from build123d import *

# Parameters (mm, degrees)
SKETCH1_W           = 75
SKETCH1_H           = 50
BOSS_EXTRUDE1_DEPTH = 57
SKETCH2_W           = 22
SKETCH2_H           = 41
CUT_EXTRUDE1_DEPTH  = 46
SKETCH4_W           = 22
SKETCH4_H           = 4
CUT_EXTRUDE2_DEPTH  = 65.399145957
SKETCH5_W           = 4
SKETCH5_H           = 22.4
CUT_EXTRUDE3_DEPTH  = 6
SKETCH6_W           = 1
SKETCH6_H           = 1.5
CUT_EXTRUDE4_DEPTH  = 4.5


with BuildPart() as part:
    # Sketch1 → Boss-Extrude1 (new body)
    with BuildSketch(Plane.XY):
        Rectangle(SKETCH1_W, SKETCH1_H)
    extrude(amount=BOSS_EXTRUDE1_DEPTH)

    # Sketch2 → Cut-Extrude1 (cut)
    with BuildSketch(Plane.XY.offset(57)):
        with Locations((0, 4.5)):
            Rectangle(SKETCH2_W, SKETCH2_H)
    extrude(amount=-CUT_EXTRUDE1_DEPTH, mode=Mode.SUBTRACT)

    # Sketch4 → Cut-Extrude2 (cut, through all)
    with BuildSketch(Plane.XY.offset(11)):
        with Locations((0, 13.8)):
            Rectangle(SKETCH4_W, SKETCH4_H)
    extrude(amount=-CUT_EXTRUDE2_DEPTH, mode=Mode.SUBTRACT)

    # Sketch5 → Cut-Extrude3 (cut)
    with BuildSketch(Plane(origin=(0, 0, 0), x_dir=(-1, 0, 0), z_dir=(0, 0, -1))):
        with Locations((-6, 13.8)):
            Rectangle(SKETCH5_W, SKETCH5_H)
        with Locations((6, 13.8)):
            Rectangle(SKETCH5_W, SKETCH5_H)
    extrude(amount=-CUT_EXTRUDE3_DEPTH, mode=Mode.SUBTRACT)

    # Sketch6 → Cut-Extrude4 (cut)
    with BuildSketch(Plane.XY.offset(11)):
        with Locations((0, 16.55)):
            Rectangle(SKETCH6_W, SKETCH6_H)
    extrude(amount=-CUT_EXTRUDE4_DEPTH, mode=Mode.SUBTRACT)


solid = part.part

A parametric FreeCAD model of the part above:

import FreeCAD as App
import Part
import Sketcher

V = App.Vector


def add_polygon(sketch, points):
    """Adds a closed chain of lines whose ends are joined by coincident constraints."""
    first, n = sketch.GeometryCount, len(points)
    for a, b in zip(points, points[1:] + points[:1]):
        sketch.addGeometry(Part.LineSegment(App.Vector(*a, 0), App.Vector(*b, 0)), False)
    for i in range(n):
        sketch.addConstraint(Sketcher.Constraint("Coincident", first + i, 2, first + (i + 1) % n, 1))

doc = App.newDocument("Part")
body = doc.addObject("PartDesign::Body", "Body")

sketch1 = body.newObject("Sketcher::SketchObject", "Sketch")
sketch1.AttachmentSupport = (doc.getObject("XY_Plane"), [""])
sketch1.MapMode = "FlatFace"
add_polygon(sketch1, [(-38, 25), (-38, -25), (38, -25), (38, 25)])
sketch1.addConstraint([
    Sketcher.Constraint("Vertical", 0),
    Sketcher.Constraint("Horizontal", 1),
    Sketcher.Constraint("Vertical", 2),
    Sketcher.Constraint("Horizontal", 3),
    Sketcher.Constraint("Symmetric", 0, 2, 2, 2, -1, 1),
    Sketcher.Constraint("DistanceX", 1, 1, 1, 2, 75.0),
    Sketcher.Constraint("DistanceY", 0, 2, 0, 1, 50.0),
])
pad1 = body.newObject("PartDesign::Pad", "Pad")
pad1.Profile = sketch1
pad1.Length = 57

sketch2 = body.newObject("Sketcher::SketchObject", "Sketch001")
sketch2.AttachmentSupport = (doc.getObject("XY_Plane"), [""])
sketch2.MapMode = "FlatFace"
sketch2.AttachmentOffset = App.Placement(V(0, 0, 57), App.Rotation())
add_polygon(sketch2, [(-11, 25), (-11, -16), (11, -16), (11, 25)])
sketch2.addConstraint([
    Sketcher.Constraint("Vertical", 0),
    Sketcher.Constraint("Horizontal", 1),
    Sketcher.Constraint("Vertical", 2),
    Sketcher.Constraint("Horizontal", 3),
    Sketcher.Constraint("DistanceX", 1, 1, 1, 2, 22.0),
    Sketcher.Constraint("DistanceY", 0, 2, 0, 1, 41.0),
    Sketcher.Constraint("DistanceX", 0, 2, -1, 1, 11.0),
    Sketcher.Constraint("DistanceY", 0, 2, -1, 1, 16.0),
])
pocket1 = body.newObject("PartDesign::Pocket", "Pocket")
pocket1.Profile = sketch2
pocket1.Length = 46

sketch3 = body.newObject("Sketcher::SketchObject", "Sketch002")
sketch3.AttachmentSupport = (doc.getObject("XY_Plane"), [""])
sketch3.MapMode = "FlatFace"
sketch3.AttachmentOffset = App.Placement(V(0, 0, 11), App.Rotation())
add_polygon(sketch3, [(-11, 15.8), (-11, 11.8), (11, 11.8), (11, 15.8)])
sketch3.addConstraint([
    Sketcher.Constraint("Vertical", 0),
    Sketcher.Constraint("Horizontal", 1),
    Sketcher.Constraint("Vertical", 2),
    Sketcher.Constraint("Horizontal", 3),
    Sketcher.Constraint("DistanceX", 1, 1, 1, 2, 22.0),
    Sketcher.Constraint("DistanceY", 0, 2, 0, 1, 4.0),
    Sketcher.Constraint("DistanceX", 0, 2, -1, 1, 11.0),
    Sketcher.Constraint("DistanceY", -1, 1, 0, 2, 11.8),
])
pocket2 = body.newObject("PartDesign::Pocket", "Pocket001")
pocket2.Profile = sketch3
pocket2.Type = "ThroughAll"

sketch4 = body.newObject("Sketcher::SketchObject", "Sketch003")
sketch4.AttachmentSupport = (doc.getObject("XY_Plane"), [""])
sketch4.MapMode = "FlatFace"
add_polygon(sketch4, [(8, 25), (8, 2.6), (4, 2.6), (4, 25)])
add_polygon(sketch4, [(-4, 25), (-4, 2.6), (-8, 2.6), (-8, 25)])
sketch4.addConstraint([
    Sketcher.Constraint("Vertical", 0),
    Sketcher.Constraint("Horizontal", 1),
    Sketcher.Constraint("Vertical", 2),
    Sketcher.Constraint("Horizontal", 3),
    Sketcher.Constraint("Vertical", 4),
    Sketcher.Constraint("Horizontal", 5),
    Sketcher.Constraint("Vertical", 6),
    Sketcher.Constraint("Horizontal", 7),
    Sketcher.Constraint("Symmetric", 1, 2, 4, 2, -2),
    Sketcher.Constraint("Symmetric", 3, 2, 6, 2, -2),
    Sketcher.Constraint("DistanceX", 1, 2, 1, 1, 4.0),
    Sketcher.Constraint("DistanceY", 0, 2, 0, 1, 22.4),
    Sketcher.Constraint("DistanceX", -1, 1, 0, 2, 8.0),
    Sketcher.Constraint("DistanceY", -1, 1, 2, 2, 25.0),
])
pocket3 = body.newObject("PartDesign::Pocket", "Pocket002")
pocket3.Profile = sketch4
pocket3.Length = 6
pocket3.Reversed = True

sketch5 = body.newObject("Sketcher::SketchObject", "Sketch004")
sketch5.AttachmentSupport = (doc.getObject("XY_Plane"), [""])
sketch5.MapMode = "FlatFace"
sketch5.AttachmentOffset = App.Placement(V(0, 0, 11), App.Rotation())
add_polygon(sketch5, [(-0.5, 17.3), (-0.5, 15.8), (0.5, 15.8), (0.5, 17.3)])
sketch5.addConstraint([
    Sketcher.Constraint("Vertical", 0),
    Sketcher.Constraint("Horizontal", 1),
    Sketcher.Constraint("Vertical", 2),
    Sketcher.Constraint("Horizontal", 3),
    Sketcher.Constraint("DistanceX", 1, 1, 1, 2, 1.0),
    Sketcher.Constraint("DistanceY", 0, 2, 0, 1, 1.5),
    Sketcher.Constraint("DistanceX", 0, 2, -1, 1, 0.5),
    Sketcher.Constraint("DistanceY", -1, 1, 0, 2, 15.8),
])
pocket4 = body.newObject("PartDesign::Pocket", "Pocket003")
pocket4.Profile = sketch5
pocket4.Length = 4.5

doc.recompute()
